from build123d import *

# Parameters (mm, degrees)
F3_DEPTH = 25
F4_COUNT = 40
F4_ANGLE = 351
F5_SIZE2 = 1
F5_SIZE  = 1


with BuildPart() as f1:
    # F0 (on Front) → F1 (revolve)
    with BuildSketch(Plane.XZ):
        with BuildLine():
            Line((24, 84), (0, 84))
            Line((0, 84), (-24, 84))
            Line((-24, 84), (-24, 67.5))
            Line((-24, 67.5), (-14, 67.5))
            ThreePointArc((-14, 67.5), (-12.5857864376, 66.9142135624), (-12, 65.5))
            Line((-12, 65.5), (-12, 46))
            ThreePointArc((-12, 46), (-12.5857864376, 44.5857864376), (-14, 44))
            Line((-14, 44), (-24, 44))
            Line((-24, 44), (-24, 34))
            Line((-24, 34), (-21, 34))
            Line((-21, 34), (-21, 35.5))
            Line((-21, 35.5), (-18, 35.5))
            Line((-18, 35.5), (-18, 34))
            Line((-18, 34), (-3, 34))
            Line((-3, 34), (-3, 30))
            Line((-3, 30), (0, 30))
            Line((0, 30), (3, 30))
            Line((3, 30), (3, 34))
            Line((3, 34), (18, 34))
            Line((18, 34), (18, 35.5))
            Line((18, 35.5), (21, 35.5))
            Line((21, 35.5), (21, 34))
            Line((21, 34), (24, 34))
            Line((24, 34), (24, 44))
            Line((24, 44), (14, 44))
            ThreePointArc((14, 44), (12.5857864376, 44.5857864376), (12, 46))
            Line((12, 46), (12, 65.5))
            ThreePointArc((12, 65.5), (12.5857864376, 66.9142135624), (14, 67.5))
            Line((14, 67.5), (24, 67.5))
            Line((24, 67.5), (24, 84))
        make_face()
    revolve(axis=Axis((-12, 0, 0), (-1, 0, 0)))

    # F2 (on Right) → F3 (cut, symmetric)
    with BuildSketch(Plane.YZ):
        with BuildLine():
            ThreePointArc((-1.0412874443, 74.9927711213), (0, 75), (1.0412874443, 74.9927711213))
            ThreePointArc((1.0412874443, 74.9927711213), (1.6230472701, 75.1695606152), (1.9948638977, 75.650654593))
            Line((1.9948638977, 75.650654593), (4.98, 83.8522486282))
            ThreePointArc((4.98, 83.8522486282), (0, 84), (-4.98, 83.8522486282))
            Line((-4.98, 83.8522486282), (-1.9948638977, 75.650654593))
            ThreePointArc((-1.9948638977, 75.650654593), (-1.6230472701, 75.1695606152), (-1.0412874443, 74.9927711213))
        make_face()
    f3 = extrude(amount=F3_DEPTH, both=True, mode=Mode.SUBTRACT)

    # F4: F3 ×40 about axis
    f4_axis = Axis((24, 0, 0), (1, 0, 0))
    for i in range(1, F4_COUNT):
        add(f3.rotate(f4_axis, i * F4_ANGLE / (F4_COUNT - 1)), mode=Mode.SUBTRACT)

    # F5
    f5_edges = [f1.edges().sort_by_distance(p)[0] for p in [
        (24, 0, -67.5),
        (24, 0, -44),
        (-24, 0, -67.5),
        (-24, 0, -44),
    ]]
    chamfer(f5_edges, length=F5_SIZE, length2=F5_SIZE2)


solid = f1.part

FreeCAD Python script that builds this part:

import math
import FreeCAD as App
import Part
import Sketcher

V = App.Vector
Q = App.Units.Quantity


def edges_at(feature, points):
    """Names of the edges that pass closest to the given points."""
    edges = feature.Shape.Edges
    near = lambda p: min(range(len(edges)), key=lambda i: edges[i].distToShape(Part.Vertex(*p))[0])
    return sorted({f"Edge{near(p) + 1}" for p in points})

doc = App.newDocument("Part")
body = doc.addObject("PartDesign::Body", "Body")

# Sketch on XZ plane
sketch1 = doc.addObject("Sketcher::SketchObject", "Sketch")
body.addObject(sketch1)
sketch1.AttachmentSupport = (doc.XZ_Plane, [""])
sketch1.MapMode = "FlatFace"
sketch1.addGeometry(Part.LineSegment(V(24, 84, 0), V(-24, 84, 0)), False)
sketch1.addGeometry(Part.LineSegment(V(-24, 84, 0), V(-24, 67.5, 0)), False)
sketch1.addGeometry(Part.LineSegment(V(-24, 67.5, 0), V(-14, 67.5, 0)), False)
sketch1.addGeometry(Part.ArcOfCircle(Part.Circle(V(-14, 65.5, 0), V(0, 0, 1), 2), math.radians(0), math.radians(90)), False)
sketch1.addGeometry(Part.LineSegment(V(-12, 65.5, 0), V(-12, 46, 0)), False)
sketch1.addGeometry(Part.ArcOfCircle(Part.Circle(V(-14, 46, 0), V(0, 0, 1), 2), math.radians(-90), math.radians(0)), False)
sketch1.addGeometry(Part.LineSegment(V(-14, 44, 0), V(-24, 44, 0)), False)
sketch1.addGeometry(Part.LineSegment(V(-24, 44, 0), V(-24, 34, 0)), False)
sketch1.addGeometry(Part.LineSegment(V(-24, 34, 0), V(-21, 34, 0)), False)
sketch1.addGeometry(Part.LineSegment(V(-21, 34, 0), V(-21, 35.5, 0)), False)
sketch1.addGeometry(Part.LineSegment(V(-21, 35.5, 0), V(-18, 35.5, 0)), False)
sketch1.addGeometry(Part.LineSegment(V(-18, 35.5, 0), V(-18, 34, 0)), False)
sketch1.addGeometry(Part.LineSegment(V(-18, 34, 0), V(-3, 34, 0)), False)
sketch1.addGeometry(Part.LineSegment(V(-3, 34, 0), V(-3, 30, 0)), False)
sketch1.addGeometry(Part.LineSegment(V(-3, 30, 0), V(3, 30, 0)), False)
sketch1.addGeometry(Part.LineSegment(V(3, 30, 0), V(3, 34, 0)), False)
sketch1.addGeometry(Part.LineSegment(V(3, 34, 0), V(18, 34, 0)), False)
sketch1.addGeometry(Part.LineSegment(V(18, 34, 0), V(18, 35.5, 0)), False)
sketch1.addGeometry(Part.LineSegment(V(18, 35.5, 0), V(21, 35.5, 0)), False)
sketch1.addGeometry(Part.LineSegment(V(21, 35.5, 0), V(21, 34, 0)), False)
sketch1.addGeometry(Part.LineSegment(V(21, 34, 0), V(24, 34, 0)), False)
sketch1.addGeometry(Part.LineSegment(V(24, 34, 0), V(24, 44, 0)), False)
sketch1.addGeometry(Part.LineSegment(V(24, 44, 0), V(14, 44, 0)), False)
sketch1.addGeometry(Part.ArcOfCircle(Part.Circle(V(14, 46, 0), V(0, 0, 1), 2), math.radians(180), math.radians(270)), False)
sketch1.addGeometry(Part.LineSegment(V(12, 46, 0), V(12, 65.5, 0)), False)
sketch1.addGeometry(Part.ArcOfCircle(Part.Circle(V(14, 65.5, 0), V(0, 0, 1), 2), math.radians(90), math.radians(180)), False)
sketch1.addGeometry(Part.LineSegment(V(14, 67.5, 0), V(24, 67.5, 0)), False)
sketch1.addGeometry(Part.LineSegment(V(24, 67.5, 0), V(24, 84, 0)), False)
sketch1.addConstraint(Sketcher.Constraint("Coincident", 0, 2, 1, 1))
sketch1.addConstraint(Sketcher.Constraint("Coincident", 1, 2, 2, 1))
sketch1.addConstraint(Sketcher.Constraint("Tangent", 2, 2, 3, 2))
sketch1.addConstraint(Sketcher.Constraint("Tangent", 3, 1, 4, 1))
sketch1.addConstraint(Sketcher.Constraint("Tangent", 4, 2, 5, 2))
sketch1.addConstraint(Sketcher.Constraint("Tangent", 5, 1, 6, 1))
sketch1.addConstraint(Sketcher.Constraint("Coincident", 6, 2, 7, 1))
sketch1.addConstraint(Sketcher.Constraint("Coincident", 7, 2, 8, 1))
sketch1.addConstraint(Sketcher.Constraint("Coincident", 8, 2, 9, 1))
sketch1.addConstraint(Sketcher.Constraint("Coincident", 9, 2, 10, 1))
sketch1.addConstraint(Sketcher.Constraint("Coincident", 10, 2, 11, 1))
sketch1.addConstraint(Sketcher.Constraint("Coincident", 11, 2, 12, 1))
sketch1.addConstraint(Sketcher.Constraint("Coincident", 12, 2, 13, 1))
sketch1.addConstraint(Sketcher.Constraint("Coincident", 13, 2, 14, 1))
sketch1.addConstraint(Sketcher.Constraint("Coincident", 14, 2, 15, 1))
sketch1.addConstraint(Sketcher.Constraint("Coincident", 15, 2, 16, 1))
sketch1.addConstraint(Sketcher.Constraint("Coincident", 16, 2, 17, 1))
sketch1.addConstraint(Sketcher.Constraint("Coincident", 17, 2, 18, 1))
sketch1.addConstraint(Sketcher.Constraint("Coincident", 18, 2, 19, 1))
sketch1.addConstraint(Sketcher.Constraint("Coincident", 19, 2, 20, 1))
sketch1.addConstraint(Sketcher.Constraint("Coincident", 20, 2, 21, 1))
sketch1.addConstraint(Sketcher.Constraint("Coincident", 21, 2, 22, 1))
sketch1.addConstraint(Sketcher.Constraint("Tangent", 22, 2, 23, 2))
sketch1.addConstraint(Sketcher.Constraint("Tangent", 23, 1, 24, 1))
sketch1.addConstraint(Sketcher.Constraint("Tangent", 24, 2, 25, 2))
sketch1.addConstraint(Sketcher.Constraint("Tangent", 25, 1, 26, 1))
sketch1.addConstraint(Sketcher.Constraint("Coincident", 26, 2, 27, 1))
sketch1.addConstraint(Sketcher.Constraint("Coincident", 27, 2, 0, 1))
sketch1.addConstraint(Sketcher.Constraint("Horizontal", 0))
sketch1.addConstraint(Sketcher.Constraint("Vertical", 1))
sketch1.addConstraint(Sketcher.Constraint("Horizontal", 2))
sketch1.addConstraint(Sketcher.Constraint("Vertical", 4))
sketch1.addConstraint(Sketcher.Constraint("Horizontal", 6))
sketch1.addConstraint(Sketcher.Constraint("Vertical", 7))
sketch1.addConstraint(Sketcher.Constraint("Horizontal", 8))
sketch1.addConstraint(Sketcher.Constraint("Vertical", 9))
sketch1.addConstraint(Sketcher.Constraint("Horizontal", 10))
sketch1.addConstraint(Sketcher.Constraint("Vertical", 11))
sketch1.addConstraint(Sketcher.Constraint("Horizontal", 12))
sketch1.addConstraint(Sketcher.Constraint("Vertical", 13))
sketch1.addConstraint(Sketcher.Constraint("Horizontal", 14))
sketch1.addConstraint(Sketcher.Constraint("Vertical", 15))
sketch1.addConstraint(Sketcher.Constraint("Horizontal", 16))
sketch1.addConstraint(Sketcher.Constraint("Vertical", 17))
sketch1.addConstraint(Sketcher.Constraint("Horizontal", 18))
sketch1.addConstraint(Sketcher.Constraint("Vertical", 19))
sketch1.addConstraint(Sketcher.Constraint("Horizontal", 20))
sketch1.addConstraint(Sketcher.Constraint("Vertical", 21))
sketch1.addConstraint(Sketcher.Constraint("Horizontal", 22))
sketch1.addConstraint(Sketcher.Constraint("Vertical", 24))
sketch1.addConstraint(Sketcher.Constraint("Horizontal", 26))
sketch1.addConstraint(Sketcher.Constraint("Vertical", 27))
sketch1.addConstraint(Sketcher.Constraint("Equal", 3, 5))
sketch1.addConstraint(Sketcher.Constraint("Equal", 5, 23))
sketch1.addConstraint(Sketcher.Constraint("Equal", 23, 25))
sketch1.addConstraint(Sketcher.Constraint("Symmetric", 5, 3, 23, 3, -2))
sketch1.addConstraint(Sketcher.Constraint("Symmetric", 12, 2, 15, 2, -2))
sketch1.addConstraint(Sketcher.Constraint("Symmetric", 10, 2, 17, 2, -2))
sketch1.addConstraint(Sketcher.Constraint("Symmetric", 8, 2, 19, 2, -2))
sketch1.addConstraint(Sketcher.Constraint("Symmetric", 1, 2, 26, 2, -2))
sketch1.addConstraint(Sketcher.Constraint("Horizontal", 8, 2, 11, 2))
sketch1.addConstraint(Sketcher.Constraint("Vertical", 1, 2, 6, 2))
sketch1.addConstraint(Sketcher.Constraint("Vertical", 21, 2, 26, 2))
sketch1.addConstraint(Sketcher.Constraint("Equal", 8, 10))
sketch1.addConstraint(Sketcher.Constraint("Equal", 26, 7))
sketch1.addConstraint(Sketcher.Constraint("Radius", 3, 2.0))
sketch1.addConstraint(Sketcher.Constraint("DistanceX", 0, 2, 0, 1, 48.0))
sketch1.addConstraint(Sketcher.Constraint("DistanceX", 2, 1, 2, 2, 10.0))
sketch1.addConstraint(Sketcher.Constraint("DistanceX", 8, 1, 8, 2, 3.0))
sketch1.addConstraint(Sketcher.Constraint("DistanceX", 12, 1, 12, 2, 15.0))
sketch1.addConstraint(Sketcher.Constraint("DistanceY", 13, 2, 13, 1, 4.0))
sketch1.addConstraint(Sketcher.Constraint("DistanceY", 1, 2, 1, 1, 16.5))
sketch1.addConstraint(Sketcher.Constraint("DistanceY", 4, 2, 4, 1, 19.5))
sketch1.addConstraint(Sketcher.Constraint("DistanceY", 9, 1, 9, 2, 1.5))
sketch1.addConstraint(Sketcher.Constraint("DistanceY", -1, 1, 5, 3, 46.0))
revolution = doc.addObject("PartDesign::Revolution", "Revolution")
body.addObject(revolution)
revolution.Profile = sketch1
revolution.ReferenceAxis = (sketch1, ["H_Axis"])
revolution.Angle = 360

# Sketch on YZ plane
sketch2 = doc.addObject("Sketcher::SketchObject", "Sketch001")
body.addObject(sketch2)
sketch2.AttachmentSupport = (doc.YZ_Plane, [""])
sketch2.MapMode = "FlatFace"
sketch2.addGeometry(Part.ArcOfCircle(Part.Circle(V(0, 0, 0), V(0, 0, 1), 75), math.radians(89.2), math.radians(90.8)), False)
sketch2.addGeometry(Part.ArcOfCircle(Part.Circle(V(1.1, 76, 0), V(0, 0, 1), 1), math.radians(-91), math.radians(-20)), False)
sketch2.addGeometry(Part.LineSegment(V(2, 75.7, 0), V(5, 83.9, 0)), False)
sketch2.addGeometry(Part.ArcOfCircle(Part.Circle(V(0, 0, 0), V(0, 0, 1), 84), math.radians(86.6), math.radians(93.4)), False)
sketch2.addGeometry(Part.LineSegment(V(-5, 83.9, 0), V(-2, 75.7, 0)), False)
sketch2.addGeometry(Part.ArcOfCircle(Part.Circle(V(-1.1, 76, 0), V(0, 0, 1), 1), math.radians(-160), math.radians(-89)), False)
sketch2.addConstraint(Sketcher.Constraint("Tangent", 0, 1, 1, 1))
sketch2.addConstraint(Sketcher.Constraint("Tangent", 1, 2, 2, 1))
sketch2.addConstraint(Sketcher.Constraint("Coincident", 2, 2, 3, 1))
sketch2.addConstraint(Sketcher.Constraint("Coincident", 3, 2, 4, 1))
sketch2.addConstraint(Sketcher.Constraint("Tangent", 4, 2, 5, 1))
sketch2.addConstraint(Sketcher.Constraint("Tangent", 5, 2, 0, 2))
sketch2.addConstraint(Sketcher.Constraint("Coincident", 0, 3, -1, 1))
sketch2.addConstraint(Sketcher.Constraint("Coincident", 3, 3, -1, 1))
sketch2.addConstraint(Sketcher.Constraint("Equal", 1, 5))
sketch2.addConstraint(Sketcher.Constraint("Symmetric", 1, 2, 4, 2, -2))
sketch2.addConstraint(Sketcher.Constraint("Radius", 0, 75.0))
sketch2.addConstraint(Sketcher.Constraint("Radius", 1, 1.0))
sketch2.addConstraint(Sketcher.Constraint("Radius", 3, 84.0))
sketch2.addConstraint(Sketcher.Constraint("Angle", 2, Q("70 deg")))
sketch2.addConstraint(Sketcher.Constraint("DistanceX", -1, 1, 2, 2, 4.98))
pocket1 = doc.addObject("PartDesign::Pocket", "Pocket")
body.addObject(pocket1)
pocket1.Profile = sketch2
pocket1.Length = 50
pocket1.Midplane = True
doc.recompute()

polarpattern = doc.addObject("PartDesign::PolarPattern", "PolarPattern")
body.addObject(polarpattern)
polarpattern.Originals = [pocket1]
polarpattern.Axis = (doc.X_Axis, [""])
polarpattern.Angle = 360
polarpattern.Occurrences = 40
body.Tip = polarpattern
doc.recompute()

chamfer = doc.addObject("PartDesign::Chamfer", "Chamfer")
body.addObject(chamfer)
chamfer.Base = (polarpattern, edges_at(polarpattern, [
    (24, 0, -67.5),
    (24, 0, -44),
    (-24, 0, -67.5),
    (-24, 0, -44),
]))
chamfer.ChamferType = "Two distances"
chamfer.Size = 1
chamfer.Size2 = 1

doc.recompute()
